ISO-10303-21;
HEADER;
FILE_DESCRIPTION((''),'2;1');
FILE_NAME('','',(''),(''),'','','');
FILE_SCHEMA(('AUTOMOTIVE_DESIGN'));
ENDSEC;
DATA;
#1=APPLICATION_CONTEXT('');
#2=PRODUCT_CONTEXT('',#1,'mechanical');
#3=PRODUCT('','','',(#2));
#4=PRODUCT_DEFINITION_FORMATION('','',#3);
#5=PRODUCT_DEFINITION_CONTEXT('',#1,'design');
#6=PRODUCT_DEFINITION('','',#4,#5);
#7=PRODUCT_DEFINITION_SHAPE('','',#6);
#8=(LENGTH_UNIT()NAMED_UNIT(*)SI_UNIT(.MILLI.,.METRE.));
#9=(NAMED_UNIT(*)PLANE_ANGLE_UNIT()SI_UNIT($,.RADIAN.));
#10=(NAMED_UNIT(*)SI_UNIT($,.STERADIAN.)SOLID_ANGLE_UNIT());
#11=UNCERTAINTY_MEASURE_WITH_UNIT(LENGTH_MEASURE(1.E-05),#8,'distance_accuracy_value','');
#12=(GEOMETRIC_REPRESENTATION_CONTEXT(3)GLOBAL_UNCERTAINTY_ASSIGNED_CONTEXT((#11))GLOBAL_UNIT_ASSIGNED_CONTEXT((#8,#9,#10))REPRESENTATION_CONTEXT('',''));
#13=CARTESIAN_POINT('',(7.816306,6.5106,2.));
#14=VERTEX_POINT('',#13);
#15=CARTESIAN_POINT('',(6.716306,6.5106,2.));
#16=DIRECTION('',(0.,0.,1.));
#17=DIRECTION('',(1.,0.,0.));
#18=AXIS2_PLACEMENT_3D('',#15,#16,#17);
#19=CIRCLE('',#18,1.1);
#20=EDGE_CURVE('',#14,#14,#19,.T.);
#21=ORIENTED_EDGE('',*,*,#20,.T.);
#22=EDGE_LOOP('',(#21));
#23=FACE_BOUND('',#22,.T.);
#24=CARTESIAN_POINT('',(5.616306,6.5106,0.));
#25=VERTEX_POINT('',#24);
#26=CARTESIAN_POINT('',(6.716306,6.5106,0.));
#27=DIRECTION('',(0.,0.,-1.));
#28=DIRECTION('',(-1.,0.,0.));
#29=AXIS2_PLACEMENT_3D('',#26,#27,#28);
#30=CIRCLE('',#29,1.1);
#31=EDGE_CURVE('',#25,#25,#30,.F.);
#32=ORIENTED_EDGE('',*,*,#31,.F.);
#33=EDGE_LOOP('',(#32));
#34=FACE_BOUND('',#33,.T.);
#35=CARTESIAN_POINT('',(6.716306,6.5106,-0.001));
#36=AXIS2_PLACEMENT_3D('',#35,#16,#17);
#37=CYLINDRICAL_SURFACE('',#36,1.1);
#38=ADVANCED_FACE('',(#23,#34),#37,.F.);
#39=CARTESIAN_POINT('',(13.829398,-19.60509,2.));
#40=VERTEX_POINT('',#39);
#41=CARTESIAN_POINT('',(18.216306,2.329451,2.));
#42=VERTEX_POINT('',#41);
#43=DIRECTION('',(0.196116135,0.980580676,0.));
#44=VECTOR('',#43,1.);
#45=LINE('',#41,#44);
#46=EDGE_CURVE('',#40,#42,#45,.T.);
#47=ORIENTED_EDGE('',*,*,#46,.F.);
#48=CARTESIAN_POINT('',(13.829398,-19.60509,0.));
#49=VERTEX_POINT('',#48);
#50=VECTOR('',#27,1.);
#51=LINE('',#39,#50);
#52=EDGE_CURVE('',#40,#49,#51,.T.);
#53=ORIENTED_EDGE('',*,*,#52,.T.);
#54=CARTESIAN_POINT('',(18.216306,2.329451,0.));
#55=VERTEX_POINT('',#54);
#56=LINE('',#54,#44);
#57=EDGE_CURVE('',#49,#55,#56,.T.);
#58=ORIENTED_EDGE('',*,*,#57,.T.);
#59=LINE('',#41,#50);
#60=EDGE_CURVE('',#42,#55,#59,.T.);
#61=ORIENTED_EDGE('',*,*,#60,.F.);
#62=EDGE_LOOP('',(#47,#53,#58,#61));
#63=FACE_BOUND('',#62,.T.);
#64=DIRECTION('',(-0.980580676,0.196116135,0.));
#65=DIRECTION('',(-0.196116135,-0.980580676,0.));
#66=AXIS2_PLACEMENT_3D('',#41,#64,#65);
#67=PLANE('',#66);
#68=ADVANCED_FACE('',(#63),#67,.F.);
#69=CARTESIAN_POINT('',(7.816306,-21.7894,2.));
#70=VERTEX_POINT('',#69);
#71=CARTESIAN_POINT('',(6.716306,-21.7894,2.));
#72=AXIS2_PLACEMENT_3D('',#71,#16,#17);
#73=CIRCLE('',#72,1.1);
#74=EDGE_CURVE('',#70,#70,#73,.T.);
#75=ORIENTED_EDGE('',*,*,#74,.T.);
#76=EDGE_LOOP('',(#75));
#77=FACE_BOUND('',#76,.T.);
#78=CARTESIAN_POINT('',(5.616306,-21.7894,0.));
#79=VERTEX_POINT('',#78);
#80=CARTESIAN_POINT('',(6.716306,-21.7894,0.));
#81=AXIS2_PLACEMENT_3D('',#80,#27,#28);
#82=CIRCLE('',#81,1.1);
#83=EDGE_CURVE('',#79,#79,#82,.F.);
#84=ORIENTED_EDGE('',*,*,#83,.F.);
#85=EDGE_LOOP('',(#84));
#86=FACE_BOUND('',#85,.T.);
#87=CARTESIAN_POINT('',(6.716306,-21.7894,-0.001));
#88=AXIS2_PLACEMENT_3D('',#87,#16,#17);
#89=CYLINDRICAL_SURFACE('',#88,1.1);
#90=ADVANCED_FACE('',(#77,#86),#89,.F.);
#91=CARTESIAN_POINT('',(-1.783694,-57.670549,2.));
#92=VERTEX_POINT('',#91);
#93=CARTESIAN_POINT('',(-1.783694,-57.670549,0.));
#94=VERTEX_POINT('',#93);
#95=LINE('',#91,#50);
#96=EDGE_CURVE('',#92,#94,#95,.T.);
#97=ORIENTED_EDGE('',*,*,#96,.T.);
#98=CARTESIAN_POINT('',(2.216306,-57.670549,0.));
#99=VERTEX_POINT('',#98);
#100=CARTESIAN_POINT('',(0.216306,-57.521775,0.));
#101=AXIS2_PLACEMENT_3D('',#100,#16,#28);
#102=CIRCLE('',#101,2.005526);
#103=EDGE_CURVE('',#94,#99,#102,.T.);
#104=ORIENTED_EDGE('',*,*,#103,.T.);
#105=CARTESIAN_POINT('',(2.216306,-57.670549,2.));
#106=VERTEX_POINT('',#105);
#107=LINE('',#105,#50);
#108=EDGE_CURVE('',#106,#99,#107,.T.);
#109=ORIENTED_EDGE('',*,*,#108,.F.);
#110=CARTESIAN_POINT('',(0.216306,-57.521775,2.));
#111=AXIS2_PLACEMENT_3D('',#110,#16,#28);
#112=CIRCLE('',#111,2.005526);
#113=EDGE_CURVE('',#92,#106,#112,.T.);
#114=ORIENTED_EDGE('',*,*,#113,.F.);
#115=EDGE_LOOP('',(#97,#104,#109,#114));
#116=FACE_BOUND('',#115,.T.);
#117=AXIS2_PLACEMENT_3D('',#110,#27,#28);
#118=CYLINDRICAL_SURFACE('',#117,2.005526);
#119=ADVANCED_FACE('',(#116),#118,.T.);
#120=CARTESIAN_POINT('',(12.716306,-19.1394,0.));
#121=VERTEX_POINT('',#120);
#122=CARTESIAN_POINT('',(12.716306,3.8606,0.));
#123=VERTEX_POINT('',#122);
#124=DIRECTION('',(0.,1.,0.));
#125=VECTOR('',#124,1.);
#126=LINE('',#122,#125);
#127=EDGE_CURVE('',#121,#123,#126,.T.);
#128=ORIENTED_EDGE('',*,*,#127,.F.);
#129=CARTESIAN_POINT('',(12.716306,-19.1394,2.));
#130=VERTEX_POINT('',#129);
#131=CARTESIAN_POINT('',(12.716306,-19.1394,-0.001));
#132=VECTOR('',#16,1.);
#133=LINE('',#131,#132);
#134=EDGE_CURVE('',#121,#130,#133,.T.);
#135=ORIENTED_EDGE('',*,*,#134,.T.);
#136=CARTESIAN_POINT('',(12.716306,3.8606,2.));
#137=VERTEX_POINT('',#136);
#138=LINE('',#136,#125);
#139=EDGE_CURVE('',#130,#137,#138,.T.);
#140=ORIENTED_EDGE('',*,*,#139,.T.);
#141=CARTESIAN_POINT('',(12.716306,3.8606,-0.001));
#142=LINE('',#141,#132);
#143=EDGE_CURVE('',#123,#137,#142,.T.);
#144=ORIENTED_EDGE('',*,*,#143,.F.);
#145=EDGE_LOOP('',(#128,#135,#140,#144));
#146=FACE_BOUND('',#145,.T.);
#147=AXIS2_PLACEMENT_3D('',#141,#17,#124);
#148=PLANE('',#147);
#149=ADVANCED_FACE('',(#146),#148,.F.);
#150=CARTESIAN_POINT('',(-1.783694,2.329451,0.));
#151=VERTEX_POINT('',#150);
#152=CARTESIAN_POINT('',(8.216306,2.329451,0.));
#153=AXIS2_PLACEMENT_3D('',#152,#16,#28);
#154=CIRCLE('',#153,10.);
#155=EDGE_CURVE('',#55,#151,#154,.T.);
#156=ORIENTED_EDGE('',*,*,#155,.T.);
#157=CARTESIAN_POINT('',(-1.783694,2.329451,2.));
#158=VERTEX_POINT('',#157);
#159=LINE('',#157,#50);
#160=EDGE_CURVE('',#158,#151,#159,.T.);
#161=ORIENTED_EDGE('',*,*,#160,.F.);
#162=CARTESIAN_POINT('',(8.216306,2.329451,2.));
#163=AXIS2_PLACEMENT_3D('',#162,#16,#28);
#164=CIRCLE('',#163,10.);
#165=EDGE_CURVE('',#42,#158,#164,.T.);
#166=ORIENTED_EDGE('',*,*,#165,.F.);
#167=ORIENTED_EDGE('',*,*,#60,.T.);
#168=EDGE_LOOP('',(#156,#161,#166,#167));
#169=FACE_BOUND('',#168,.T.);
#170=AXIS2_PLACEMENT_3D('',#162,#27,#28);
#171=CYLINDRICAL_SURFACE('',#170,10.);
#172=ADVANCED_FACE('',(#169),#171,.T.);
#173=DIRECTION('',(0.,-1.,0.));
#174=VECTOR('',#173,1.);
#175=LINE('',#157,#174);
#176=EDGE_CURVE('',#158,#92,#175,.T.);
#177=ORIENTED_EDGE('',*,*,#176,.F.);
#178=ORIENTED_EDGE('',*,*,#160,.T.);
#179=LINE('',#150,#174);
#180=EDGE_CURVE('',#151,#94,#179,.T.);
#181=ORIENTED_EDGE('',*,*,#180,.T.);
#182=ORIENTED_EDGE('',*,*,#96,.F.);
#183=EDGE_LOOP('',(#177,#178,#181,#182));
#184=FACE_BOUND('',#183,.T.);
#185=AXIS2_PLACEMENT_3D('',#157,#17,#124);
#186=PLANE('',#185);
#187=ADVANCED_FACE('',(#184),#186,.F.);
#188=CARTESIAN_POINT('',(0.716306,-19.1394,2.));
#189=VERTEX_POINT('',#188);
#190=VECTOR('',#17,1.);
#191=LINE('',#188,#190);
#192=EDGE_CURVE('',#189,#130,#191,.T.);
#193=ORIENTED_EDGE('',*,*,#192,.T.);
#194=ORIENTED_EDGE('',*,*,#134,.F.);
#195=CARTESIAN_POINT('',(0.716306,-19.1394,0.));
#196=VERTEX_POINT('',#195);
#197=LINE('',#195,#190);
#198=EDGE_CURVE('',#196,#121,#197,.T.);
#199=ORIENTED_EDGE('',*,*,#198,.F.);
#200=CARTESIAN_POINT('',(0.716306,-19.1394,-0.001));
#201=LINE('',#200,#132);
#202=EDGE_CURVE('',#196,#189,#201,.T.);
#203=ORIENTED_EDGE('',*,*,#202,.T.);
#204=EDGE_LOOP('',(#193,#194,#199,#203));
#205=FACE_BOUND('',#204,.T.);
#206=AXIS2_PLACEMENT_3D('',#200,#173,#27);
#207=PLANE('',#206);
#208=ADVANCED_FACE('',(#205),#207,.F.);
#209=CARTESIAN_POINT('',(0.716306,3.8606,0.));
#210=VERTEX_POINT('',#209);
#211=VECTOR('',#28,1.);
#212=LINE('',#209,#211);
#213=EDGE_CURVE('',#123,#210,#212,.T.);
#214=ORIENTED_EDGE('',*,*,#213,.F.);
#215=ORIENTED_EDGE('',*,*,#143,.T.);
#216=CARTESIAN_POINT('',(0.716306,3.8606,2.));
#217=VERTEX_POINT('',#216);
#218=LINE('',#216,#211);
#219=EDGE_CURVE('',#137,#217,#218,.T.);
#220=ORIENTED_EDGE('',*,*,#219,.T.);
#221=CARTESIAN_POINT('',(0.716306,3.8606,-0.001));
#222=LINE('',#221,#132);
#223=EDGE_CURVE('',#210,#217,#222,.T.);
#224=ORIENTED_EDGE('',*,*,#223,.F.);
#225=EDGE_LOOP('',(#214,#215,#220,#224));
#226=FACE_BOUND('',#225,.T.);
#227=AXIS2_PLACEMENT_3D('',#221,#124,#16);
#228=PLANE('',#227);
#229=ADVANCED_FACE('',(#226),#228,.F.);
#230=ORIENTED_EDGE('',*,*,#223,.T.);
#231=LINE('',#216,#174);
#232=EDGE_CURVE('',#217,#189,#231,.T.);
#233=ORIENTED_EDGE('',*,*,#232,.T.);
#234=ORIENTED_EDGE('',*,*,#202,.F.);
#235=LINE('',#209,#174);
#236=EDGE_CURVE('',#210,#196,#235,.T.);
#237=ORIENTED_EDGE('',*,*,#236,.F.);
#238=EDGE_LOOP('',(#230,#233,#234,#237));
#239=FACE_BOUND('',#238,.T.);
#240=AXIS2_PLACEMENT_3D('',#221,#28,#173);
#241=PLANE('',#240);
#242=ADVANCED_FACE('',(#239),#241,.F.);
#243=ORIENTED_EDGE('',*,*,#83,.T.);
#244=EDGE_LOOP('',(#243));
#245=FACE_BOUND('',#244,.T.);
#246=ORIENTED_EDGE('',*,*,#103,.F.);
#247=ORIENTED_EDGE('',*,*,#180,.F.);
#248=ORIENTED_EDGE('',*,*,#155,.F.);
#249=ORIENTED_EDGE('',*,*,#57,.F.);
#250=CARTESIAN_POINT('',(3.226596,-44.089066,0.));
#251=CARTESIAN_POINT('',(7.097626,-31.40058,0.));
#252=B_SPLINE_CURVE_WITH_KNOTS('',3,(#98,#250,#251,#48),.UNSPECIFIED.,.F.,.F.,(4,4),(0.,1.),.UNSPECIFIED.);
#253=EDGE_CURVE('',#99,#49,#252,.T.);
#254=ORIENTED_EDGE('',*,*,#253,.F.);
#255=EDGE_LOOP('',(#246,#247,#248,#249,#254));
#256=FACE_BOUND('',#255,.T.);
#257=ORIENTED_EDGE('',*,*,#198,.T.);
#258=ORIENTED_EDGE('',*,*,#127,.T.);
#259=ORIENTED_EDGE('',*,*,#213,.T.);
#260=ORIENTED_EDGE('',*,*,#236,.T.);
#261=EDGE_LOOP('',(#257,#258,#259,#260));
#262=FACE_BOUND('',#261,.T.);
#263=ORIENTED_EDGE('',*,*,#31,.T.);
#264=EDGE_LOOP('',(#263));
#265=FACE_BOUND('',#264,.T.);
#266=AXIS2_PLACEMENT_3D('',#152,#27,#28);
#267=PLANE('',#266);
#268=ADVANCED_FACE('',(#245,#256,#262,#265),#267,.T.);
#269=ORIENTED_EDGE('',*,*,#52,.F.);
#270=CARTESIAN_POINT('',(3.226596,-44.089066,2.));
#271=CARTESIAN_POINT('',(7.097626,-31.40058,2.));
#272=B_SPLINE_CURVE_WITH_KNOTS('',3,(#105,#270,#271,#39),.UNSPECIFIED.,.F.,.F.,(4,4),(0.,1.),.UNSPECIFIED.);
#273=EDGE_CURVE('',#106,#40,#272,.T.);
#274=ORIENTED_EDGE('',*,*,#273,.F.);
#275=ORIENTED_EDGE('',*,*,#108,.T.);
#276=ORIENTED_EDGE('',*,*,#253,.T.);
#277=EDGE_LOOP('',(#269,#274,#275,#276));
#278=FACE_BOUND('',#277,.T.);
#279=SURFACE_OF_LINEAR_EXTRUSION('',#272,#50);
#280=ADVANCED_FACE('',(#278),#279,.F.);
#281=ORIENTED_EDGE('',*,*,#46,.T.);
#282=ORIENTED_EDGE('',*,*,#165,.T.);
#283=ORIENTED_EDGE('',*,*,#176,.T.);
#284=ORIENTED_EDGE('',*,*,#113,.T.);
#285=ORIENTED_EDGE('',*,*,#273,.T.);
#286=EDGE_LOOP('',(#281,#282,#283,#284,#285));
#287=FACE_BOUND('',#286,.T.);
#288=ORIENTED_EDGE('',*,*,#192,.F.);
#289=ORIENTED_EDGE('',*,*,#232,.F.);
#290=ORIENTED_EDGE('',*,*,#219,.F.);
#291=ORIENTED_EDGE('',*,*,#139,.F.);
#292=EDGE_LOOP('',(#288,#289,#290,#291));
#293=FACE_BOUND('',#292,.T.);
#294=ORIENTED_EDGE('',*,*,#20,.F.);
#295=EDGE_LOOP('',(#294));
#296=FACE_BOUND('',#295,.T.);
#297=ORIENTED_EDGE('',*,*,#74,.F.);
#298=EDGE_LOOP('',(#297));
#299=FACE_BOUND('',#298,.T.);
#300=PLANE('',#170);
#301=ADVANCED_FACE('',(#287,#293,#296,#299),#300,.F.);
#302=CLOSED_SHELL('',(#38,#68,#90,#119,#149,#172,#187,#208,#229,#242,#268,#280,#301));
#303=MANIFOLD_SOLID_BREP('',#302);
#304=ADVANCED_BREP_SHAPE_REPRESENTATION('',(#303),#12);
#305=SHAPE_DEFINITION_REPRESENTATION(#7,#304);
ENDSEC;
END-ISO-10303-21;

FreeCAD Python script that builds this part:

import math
import FreeCAD as App
import Part
import Sketcher

V = App.Vector


def add_polygon(sketch, points):
    """Adds a closed chain of lines whose ends are joined by coincident constraints."""
    first, n = sketch.GeometryCount, len(points)
    for a, b in zip(points, points[1:] + points[:1]):
        sketch.addGeometry(Part.LineSegment(App.Vector(*a, 0), App.Vector(*b, 0)), False)
    for i in range(n):
        sketch.addConstraint(Sketcher.Constraint("Coincident", first + i, 2, first + (i + 1) % n, 1))

doc = App.newDocument("Part")
body = doc.addObject("PartDesign::Body", "Body")

# Sketch on XY plane
sketch1 = body.newObject("Sketcher::SketchObject", "Sketch")
sketch1.AttachmentSupport = (doc.getObject("XY_Plane"), [""])
sketch1.MapMode = "FlatFace"
sketch1.addGeometry(Part.LineSegment(V(-1.783694, 2.329451, 0), V(-1.783694, -57.670549, 0)), False)
sketch1.addGeometry(Part.ArcOfCircle(Part.Circle(V(0.216306, -57.521775, 0), V(0, 0, 1), 2.005526), math.radians(-175.745758), math.radians(-4.254242)), False)
sketch1.addGeometry(Part.BSplineCurve([V(13.829398, -19.60509, 0), V(7.097626, -31.40058, 0), V(3.226596, -44.089066, 0), V(2.216306, -57.670549, 0)], [4, 4], [0, 1], False, 3, [1, 1, 1, 1], False), False)
sketch1.addGeometry(Part.LineSegment(V(13.829398, -19.60509, 0), V(18.216306, 2.329451, 0)), False)
sketch1.addGeometry(Part.ArcOfCircle(Part.Circle(V(8.216306, 2.329451, 0), V(0, 0, 1), 10), math.radians(0), math.radians(180)), False)
sketch1.addConstraint(Sketcher.Constraint("Block", 2))
sketch1.addConstraint(Sketcher.Constraint("Coincident", 0, 2, 1, 1))
sketch1.addConstraint(Sketcher.Constraint("Coincident", 1, 2, 2, 2))
sketch1.addConstraint(Sketcher.Constraint("Coincident", 2, 1, 3, 1))
sketch1.addConstraint(Sketcher.Constraint("Coincident", 3, 2, 4, 1))
sketch1.addConstraint(Sketcher.Constraint("Tangent", 4, 2, 0, 1))
sketch1.addConstraint(Sketcher.Constraint("Vertical", 0))
sketch1.addConstraint(Sketcher.Constraint("Horizontal", 0, 2, 1, 2))
sketch1.addConstraint(Sketcher.Constraint("Horizontal", 4, 3, 3, 2))
sketch1.addConstraint(Sketcher.Constraint("Radius", 4, 10.0))
sketch1.addConstraint(Sketcher.Constraint("DistanceY", 0, 2, 0, 1, 60.0))
sketch1.addConstraint(Sketcher.Constraint("DistanceX", 1, 3, 4, 3, 8.0))
sketch1.addConstraint(Sketcher.Constraint("Radius", 1, 2.005526))
pad1 = body.newObject("PartDesign::Pad", "Pad")
pad1.Profile = sketch1
pad1.Length = 2

# Sketch on XY plane
sketch2 = body.newObject("Sketcher::SketchObject", "Sketch001")
sketch2.AttachmentSupport = (doc.getObject("XY_Plane"), [""])
sketch2.MapMode = "FlatFace"
sketch2.AttachmentOffset = App.Placement(V(0, 0, 2), App.Rotation())
sketch2.addGeometry(Part.Circle(V(6.716306, 6.5106, 0), V(0, 0, 1), 1.1), False)
sketch2.addConstraint(Sketcher.Constraint("Diameter", 0, 2.2))
sketch2.addConstraint(Sketcher.Constraint("DistanceY", -1, 1, 0, 3, 6.5106))
sketch2.addConstraint(Sketcher.Constraint("DistanceX", -1, 1, 0, 3, 6.716306))
pocket1 = body.newObject("PartDesign::Pocket", "Pocket")
pocket1.Profile = sketch2
pocket1.Type = "UpToFirst"

# Sketch on XY plane
sketch3 = body.newObject("Sketcher::SketchObject", "Sketch002")
sketch3.AttachmentSupport = (doc.getObject("XY_Plane"), [""])
sketch3.MapMode = "FlatFace"
sketch3.AttachmentOffset = App.Placement(V(0, 0, 2), App.Rotation())
sketch3.addGeometry(Part.Circle(V(6.716306, -21.7894, 0), V(0, 0, 1), 1.1), False)
sketch3.addConstraint(Sketcher.Constraint("Diameter", 0, 2.2))
sketch3.addConstraint(Sketcher.Constraint("DistanceY", 0, 3, -1, 1, 21.7894))
sketch3.addConstraint(Sketcher.Constraint("DistanceX", -1, 1, 0, 3, 6.716306))
pocket2 = body.newObject("PartDesign::Pocket", "Pocket001")
pocket2.Profile = sketch3
pocket2.Type = "UpToFirst"

# Sketch on XY plane
sketch4 = body.newObject("Sketcher::SketchObject", "Sketch003")
sketch4.AttachmentSupport = (doc.getObject("XY_Plane"), [""])
sketch4.MapMode = "FlatFace"
sketch4.AttachmentOffset = App.Placement(V(0, 0, 2), App.Rotation())
add_polygon(sketch4, [(0.716306, 3.8606), (0.716306, -19.1394), (12.716306, -19.1394), (12.716306, 3.8606)])  # lines 0-3
sketch4.addConstraint(Sketcher.Constraint("Vertical", 0))
sketch4.addConstraint(Sketcher.Constraint("Horizontal", 1))
sketch4.addConstraint(Sketcher.Constraint("Vertical", 2))
sketch4.addConstraint(Sketcher.Constraint("Horizontal", 3))
sketch4.addConstraint(Sketcher.Constraint("DistanceX", 1, 1, 1, 2, 12.0))
sketch4.addConstraint(Sketcher.Constraint("DistanceY", 0, 2, 0, 1, 23.0))
sketch4.addConstraint(Sketcher.Constraint("DistanceY", 0, 2, -1, 1, 19.1394))
sketch4.addConstraint(Sketcher.Constraint("DistanceX", -1, 1, 0, 2, 0.716306))
pocket3 = body.newObject("PartDesign::Pocket", "Pocket002")
pocket3.Profile = sketch4
pocket3.Type = "UpToFirst"

doc.recompute()
